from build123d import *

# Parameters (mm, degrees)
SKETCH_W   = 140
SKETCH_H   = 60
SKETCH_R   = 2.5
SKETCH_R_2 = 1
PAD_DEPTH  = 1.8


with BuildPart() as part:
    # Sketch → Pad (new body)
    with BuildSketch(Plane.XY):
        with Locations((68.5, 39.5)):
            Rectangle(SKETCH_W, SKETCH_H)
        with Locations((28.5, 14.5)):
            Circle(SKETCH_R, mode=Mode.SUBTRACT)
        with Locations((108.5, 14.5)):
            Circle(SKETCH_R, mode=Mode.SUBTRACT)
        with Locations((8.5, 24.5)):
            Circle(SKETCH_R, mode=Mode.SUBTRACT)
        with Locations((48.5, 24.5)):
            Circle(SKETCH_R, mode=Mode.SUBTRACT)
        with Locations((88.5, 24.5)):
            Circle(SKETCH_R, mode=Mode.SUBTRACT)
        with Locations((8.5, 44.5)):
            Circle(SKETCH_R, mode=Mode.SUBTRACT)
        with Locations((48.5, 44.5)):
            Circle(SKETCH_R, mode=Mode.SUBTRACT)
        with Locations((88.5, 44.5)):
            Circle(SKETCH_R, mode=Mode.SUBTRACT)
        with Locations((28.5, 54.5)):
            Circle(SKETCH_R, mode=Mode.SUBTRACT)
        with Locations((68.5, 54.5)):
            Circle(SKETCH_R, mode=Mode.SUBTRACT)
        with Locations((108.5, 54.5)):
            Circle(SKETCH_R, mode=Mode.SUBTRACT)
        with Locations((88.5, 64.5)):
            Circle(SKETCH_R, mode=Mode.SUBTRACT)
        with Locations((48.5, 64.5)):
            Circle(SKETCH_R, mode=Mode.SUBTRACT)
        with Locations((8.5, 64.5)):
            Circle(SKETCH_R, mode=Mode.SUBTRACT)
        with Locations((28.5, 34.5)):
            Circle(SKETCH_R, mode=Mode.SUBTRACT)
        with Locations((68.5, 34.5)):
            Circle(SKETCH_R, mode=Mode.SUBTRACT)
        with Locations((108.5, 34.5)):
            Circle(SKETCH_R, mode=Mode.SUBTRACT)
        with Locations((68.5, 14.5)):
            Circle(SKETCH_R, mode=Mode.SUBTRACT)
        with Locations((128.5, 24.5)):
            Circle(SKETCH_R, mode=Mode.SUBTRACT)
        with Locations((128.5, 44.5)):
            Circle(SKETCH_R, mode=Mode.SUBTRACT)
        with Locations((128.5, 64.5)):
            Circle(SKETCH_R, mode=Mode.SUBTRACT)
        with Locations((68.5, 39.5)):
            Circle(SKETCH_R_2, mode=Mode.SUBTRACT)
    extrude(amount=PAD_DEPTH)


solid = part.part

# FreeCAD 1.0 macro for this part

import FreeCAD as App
import Part
import Sketcher

V = App.Vector

doc = App.newDocument("Part")
params = doc.addObject("Spreadsheet::Sheet", "Params")
for row, (alias, value) in enumerate([
    ("sketch1_diameter", "5 mm"),
    ("sketch1_diameter2", "2 mm"),
    ("sketch1_width", "140 mm"),
    ("sketch1_height", "60 mm"),
    ("pad1_length", "1.8 mm"),
], start=1):
    params.set(f"A{row}", alias)
    params.set(f"B{row}", "=" + value)
    params.setAlias(f"B{row}", alias)

body = doc.addObject("PartDesign::Body", "Body")

# Sketch on XY plane
sketch1 = body.newObject("Sketcher::SketchObject", "Sketch")
sketch1.AttachmentSupport = (doc.getObject("XY_Plane"), [""])
sketch1.MapMode = "FlatFace"
sketch1.addGeometry([
    Part.LineSegment(V(-1.5, 69.5, 0), V(-1.5, 9.5, 0)),  # 0
    Part.LineSegment(V(-1.5, 9.5, 0), V(138.5, 9.5, 0)),  # 1
    Part.LineSegment(V(138.5, 9.5, 0), V(138.5, 69.5, 0)),  # 2
    Part.LineSegment(V(138.5, 69.5, 0), V(-1.5, 69.5, 0)),  # 3
    Part.Circle(V(28.5, 14.5, 0), V(0, 0, 1), 2.5),  # 4
    Part.Circle(V(8.5, 24.5, 0), V(0, 0, 1), 2.5),  # 5
    Part.Circle(V(48.5, 24.5, 0), V(0, 0, 1), 2.5),  # 6
    Part.Circle(V(28.5, 34.5, 0), V(0, 0, 1), 2.5),  # 7
    Part.Circle(V(68.5, 14.5, 0), V(0, 0, 1), 2.5),  # 8
    Part.Circle(V(88.5, 24.5, 0), V(0, 0, 1), 2.5),  # 9
    Part.Circle(V(108.5, 14.5, 0), V(0, 0, 1), 2.5),  # 10
    Part.Circle(V(128.5, 24.5, 0), V(0, 0, 1), 2.5),  # 11
    Part.Circle(V(68.5, 34.5, 0), V(0, 0, 1), 2.5),  # 12
    Part.Circle(V(108.5, 34.5, 0), V(0, 0, 1), 2.5),  # 13
    Part.Circle(V(8.5, 44.5, 0), V(0, 0, 1), 2.5),  # 14
    Part.Circle(V(48.5, 44.5, 0), V(0, 0, 1), 2.5),  # 15
    Part.Circle(V(28.5, 54.5, 0), V(0, 0, 1), 2.5),  # 16
    Part.Circle(V(8.5, 64.5, 0), V(0, 0, 1), 2.5),  # 17
    Part.Circle(V(48.5, 64.5, 0), V(0, 0, 1), 2.5),  # 18
    Part.Circle(V(68.5, 39.5, 0), V(0, 0, 1), 1),  # 19
    Part.Circle(V(88.5, 44.5, 0), V(0, 0, 1), 2.5),  # 20
    Part.Circle(V(128.5, 44.5, 0), V(0, 0, 1), 2.5),  # 21
    Part.Circle(V(68.5, 54.5, 0), V(0, 0, 1), 2.5),  # 22
    Part.Circle(V(88.5, 64.5, 0), V(0, 0, 1), 2.5),  # 23
    Part.Circle(V(108.5, 54.5, 0), V(0, 0, 1), 2.5),  # 24
    Part.Circle(V(128.5, 64.5, 0), V(0, 0, 1), 2.5),  # 25
], False)
sketch1.addConstraint([
    Sketcher.Constraint("Coincident", 0, 2, 1, 1),
    Sketcher.Constraint("Coincident", 1, 2, 2, 1),
    Sketcher.Constraint("Coincident", 2, 2, 3, 1),
    Sketcher.Constraint("Coincident", 3, 2, 0, 1),
    Sketcher.Constraint("Vertical", 0),
    Sketcher.Constraint("Horizontal", 1),
    Sketcher.Constraint("Vertical", 2),
    Sketcher.Constraint("Horizontal", 3),
    Sketcher.Constraint("Equal", 4, 5),
    Sketcher.Constraint("Equal", 5, 6),
    Sketcher.Constraint("Equal", 6, 7),
    Sketcher.Constraint("Equal", 7, 8),
    Sketcher.Constraint("Equal", 8, 9),
    Sketcher.Constraint("Equal", 9, 10),
    Sketcher.Constraint("Equal", 10, 11),
    Sketcher.Constraint("Equal", 11, 12),
    Sketcher.Constraint("Equal", 12, 13),
    Sketcher.Constraint("Equal", 13, 14),
    Sketcher.Constraint("Equal", 14, 15),
    Sketcher.Constraint("Equal", 15, 16),
    Sketcher.Constraint("Equal", 16, 17),
    Sketcher.Constraint("Equal", 17, 18),
    Sketcher.Constraint("Equal", 18, 20),
    Sketcher.Constraint("Equal", 20, 21),
    Sketcher.Constraint("Equal", 21, 22),
    Sketcher.Constraint("Equal", 22, 23),
    Sketcher.Constraint("Equal", 23, 24),
    Sketcher.Constraint("Equal", 24, 25),
    Sketcher.Constraint("Horizontal", 5, 3, 6, 3),
    Sketcher.Constraint("Horizontal", 4, 3, 8, 3),
    Sketcher.Constraint("Horizontal", 6, 3, 9, 3),
    Sketcher.Constraint("Horizontal", 8, 3, 10, 3),
    Sketcher.Constraint("Horizontal", 9, 3, 11, 3),
    Sketcher.Constraint("Horizontal", 7, 3, 12, 3),
    Sketcher.Constraint("Horizontal", 12, 3, 13, 3),
    Sketcher.Constraint("Horizontal", 14, 3, 15, 3),
    Sketcher.Constraint("Horizontal", 17, 3, 18, 3),
    Sketcher.Constraint("Horizontal", 15, 3, 20, 3),
    Sketcher.Constraint("Horizontal", 20, 3, 21, 3),
    Sketcher.Constraint("Horizontal", 16, 3, 22, 3),
    Sketcher.Constraint("Horizontal", 18, 3, 23, 3),
    Sketcher.Constraint("Horizontal", 22, 3, 24, 3),
    Sketcher.Constraint("Horizontal", 23, 3, 25, 3),
    Sketcher.Constraint("Vertical", 4, 3, 7, 3),
    Sketcher.Constraint("Vertical", 8, 3, 12, 3),
    Sketcher.Constraint("Vertical", 10, 3, 13, 3),
    Sketcher.Constraint("Vertical", 5, 3, 14, 3),
    Sketcher.Constraint("Vertical", 6, 3, 15, 3),
    Sketcher.Constraint("Vertical", 7, 3, 16, 3),
    Sketcher.Constraint("Vertical", 14, 3, 17, 3),
    Sketcher.Constraint("Vertical", 15, 3, 18, 3),
    Sketcher.Constraint("Vertical", 12, 3, 19, 3),
    Sketcher.Constraint("Vertical", 9, 3, 20, 3),
    Sketcher.Constraint("Vertical", 11, 3, 21, 3),
    Sketcher.Constraint("Vertical", 19, 3, 22, 3),
    Sketcher.Constraint("Vertical", 20, 3, 23, 3),
    Sketcher.Constraint("Vertical", 13, 3, 24, 3),
    Sketcher.Constraint("Vertical", 21, 3, 25, 3),
    Sketcher.Constraint("Diameter", 4, 5.0),
    Sketcher.Constraint("Diameter", 19, 2.0),
    Sketcher.Constraint("DistanceX", 1, 1, 1, 2, 140.0),
    Sketcher.Constraint("DistanceY", 0, 2, 0, 1, 60.0),
    Sketcher.Constraint("DistanceX", 5, 3, 4, 3, 20.0),
    Sketcher.Constraint("DistanceY", 4, 3, 5, 3, 10.0),
    Sketcher.Constraint("DistanceX", 4, 3, 6, 3, 20.0),
    Sketcher.Constraint("DistanceY", 4, 3, 7, 3, 20.0),
    Sketcher.Constraint("DistanceX", 6, 3, 8, 3, 20.0),
    Sketcher.Constraint("DistanceX", 8, 3, 9, 3, 20.0),
    Sketcher.Constraint("DistanceX", 9, 3, 10, 3, 20.0),
    Sketcher.Constraint("DistanceX", 10, 3, 11, 3, 20.0),
    Sketcher.Constraint("DistanceY", 5, 3, 14, 3, 20.0),
    Sketcher.Constraint("DistanceY", 7, 3, 16, 3, 20.0),
    Sketcher.Constraint("DistanceY", 14, 3, 17, 3, 20.0),
    Sketcher.Constraint("DistanceY", 12, 3, 19, 3, 5.0),
    Sketcher.Constraint("DistanceX", 0, 2, 5, 3, 10.0),
    Sketcher.Constraint("DistanceY", 0, 2, 5, 3, 15.0),
    Sketcher.Constraint("DistanceX", -1, 1, 4, 3, 28.5),
    Sketcher.Constraint("DistanceY", -1, 1, 4, 3, 14.5),
])
sketch1.setExpression("Constraints[58]", "Params.sketch1_diameter")
sketch1.setExpression("Constraints[59]", "Params.sketch1_diameter2")
sketch1.setExpression("Constraints[60]", "Params.sketch1_width")
sketch1.setExpression("Constraints[61]", "Params.sketch1_height")
pad1 = body.newObject("PartDesign::Pad", "Pad")
pad1.Profile = sketch1
pad1.setExpression("Length", "Params.pad1_length")

doc.recompute()
